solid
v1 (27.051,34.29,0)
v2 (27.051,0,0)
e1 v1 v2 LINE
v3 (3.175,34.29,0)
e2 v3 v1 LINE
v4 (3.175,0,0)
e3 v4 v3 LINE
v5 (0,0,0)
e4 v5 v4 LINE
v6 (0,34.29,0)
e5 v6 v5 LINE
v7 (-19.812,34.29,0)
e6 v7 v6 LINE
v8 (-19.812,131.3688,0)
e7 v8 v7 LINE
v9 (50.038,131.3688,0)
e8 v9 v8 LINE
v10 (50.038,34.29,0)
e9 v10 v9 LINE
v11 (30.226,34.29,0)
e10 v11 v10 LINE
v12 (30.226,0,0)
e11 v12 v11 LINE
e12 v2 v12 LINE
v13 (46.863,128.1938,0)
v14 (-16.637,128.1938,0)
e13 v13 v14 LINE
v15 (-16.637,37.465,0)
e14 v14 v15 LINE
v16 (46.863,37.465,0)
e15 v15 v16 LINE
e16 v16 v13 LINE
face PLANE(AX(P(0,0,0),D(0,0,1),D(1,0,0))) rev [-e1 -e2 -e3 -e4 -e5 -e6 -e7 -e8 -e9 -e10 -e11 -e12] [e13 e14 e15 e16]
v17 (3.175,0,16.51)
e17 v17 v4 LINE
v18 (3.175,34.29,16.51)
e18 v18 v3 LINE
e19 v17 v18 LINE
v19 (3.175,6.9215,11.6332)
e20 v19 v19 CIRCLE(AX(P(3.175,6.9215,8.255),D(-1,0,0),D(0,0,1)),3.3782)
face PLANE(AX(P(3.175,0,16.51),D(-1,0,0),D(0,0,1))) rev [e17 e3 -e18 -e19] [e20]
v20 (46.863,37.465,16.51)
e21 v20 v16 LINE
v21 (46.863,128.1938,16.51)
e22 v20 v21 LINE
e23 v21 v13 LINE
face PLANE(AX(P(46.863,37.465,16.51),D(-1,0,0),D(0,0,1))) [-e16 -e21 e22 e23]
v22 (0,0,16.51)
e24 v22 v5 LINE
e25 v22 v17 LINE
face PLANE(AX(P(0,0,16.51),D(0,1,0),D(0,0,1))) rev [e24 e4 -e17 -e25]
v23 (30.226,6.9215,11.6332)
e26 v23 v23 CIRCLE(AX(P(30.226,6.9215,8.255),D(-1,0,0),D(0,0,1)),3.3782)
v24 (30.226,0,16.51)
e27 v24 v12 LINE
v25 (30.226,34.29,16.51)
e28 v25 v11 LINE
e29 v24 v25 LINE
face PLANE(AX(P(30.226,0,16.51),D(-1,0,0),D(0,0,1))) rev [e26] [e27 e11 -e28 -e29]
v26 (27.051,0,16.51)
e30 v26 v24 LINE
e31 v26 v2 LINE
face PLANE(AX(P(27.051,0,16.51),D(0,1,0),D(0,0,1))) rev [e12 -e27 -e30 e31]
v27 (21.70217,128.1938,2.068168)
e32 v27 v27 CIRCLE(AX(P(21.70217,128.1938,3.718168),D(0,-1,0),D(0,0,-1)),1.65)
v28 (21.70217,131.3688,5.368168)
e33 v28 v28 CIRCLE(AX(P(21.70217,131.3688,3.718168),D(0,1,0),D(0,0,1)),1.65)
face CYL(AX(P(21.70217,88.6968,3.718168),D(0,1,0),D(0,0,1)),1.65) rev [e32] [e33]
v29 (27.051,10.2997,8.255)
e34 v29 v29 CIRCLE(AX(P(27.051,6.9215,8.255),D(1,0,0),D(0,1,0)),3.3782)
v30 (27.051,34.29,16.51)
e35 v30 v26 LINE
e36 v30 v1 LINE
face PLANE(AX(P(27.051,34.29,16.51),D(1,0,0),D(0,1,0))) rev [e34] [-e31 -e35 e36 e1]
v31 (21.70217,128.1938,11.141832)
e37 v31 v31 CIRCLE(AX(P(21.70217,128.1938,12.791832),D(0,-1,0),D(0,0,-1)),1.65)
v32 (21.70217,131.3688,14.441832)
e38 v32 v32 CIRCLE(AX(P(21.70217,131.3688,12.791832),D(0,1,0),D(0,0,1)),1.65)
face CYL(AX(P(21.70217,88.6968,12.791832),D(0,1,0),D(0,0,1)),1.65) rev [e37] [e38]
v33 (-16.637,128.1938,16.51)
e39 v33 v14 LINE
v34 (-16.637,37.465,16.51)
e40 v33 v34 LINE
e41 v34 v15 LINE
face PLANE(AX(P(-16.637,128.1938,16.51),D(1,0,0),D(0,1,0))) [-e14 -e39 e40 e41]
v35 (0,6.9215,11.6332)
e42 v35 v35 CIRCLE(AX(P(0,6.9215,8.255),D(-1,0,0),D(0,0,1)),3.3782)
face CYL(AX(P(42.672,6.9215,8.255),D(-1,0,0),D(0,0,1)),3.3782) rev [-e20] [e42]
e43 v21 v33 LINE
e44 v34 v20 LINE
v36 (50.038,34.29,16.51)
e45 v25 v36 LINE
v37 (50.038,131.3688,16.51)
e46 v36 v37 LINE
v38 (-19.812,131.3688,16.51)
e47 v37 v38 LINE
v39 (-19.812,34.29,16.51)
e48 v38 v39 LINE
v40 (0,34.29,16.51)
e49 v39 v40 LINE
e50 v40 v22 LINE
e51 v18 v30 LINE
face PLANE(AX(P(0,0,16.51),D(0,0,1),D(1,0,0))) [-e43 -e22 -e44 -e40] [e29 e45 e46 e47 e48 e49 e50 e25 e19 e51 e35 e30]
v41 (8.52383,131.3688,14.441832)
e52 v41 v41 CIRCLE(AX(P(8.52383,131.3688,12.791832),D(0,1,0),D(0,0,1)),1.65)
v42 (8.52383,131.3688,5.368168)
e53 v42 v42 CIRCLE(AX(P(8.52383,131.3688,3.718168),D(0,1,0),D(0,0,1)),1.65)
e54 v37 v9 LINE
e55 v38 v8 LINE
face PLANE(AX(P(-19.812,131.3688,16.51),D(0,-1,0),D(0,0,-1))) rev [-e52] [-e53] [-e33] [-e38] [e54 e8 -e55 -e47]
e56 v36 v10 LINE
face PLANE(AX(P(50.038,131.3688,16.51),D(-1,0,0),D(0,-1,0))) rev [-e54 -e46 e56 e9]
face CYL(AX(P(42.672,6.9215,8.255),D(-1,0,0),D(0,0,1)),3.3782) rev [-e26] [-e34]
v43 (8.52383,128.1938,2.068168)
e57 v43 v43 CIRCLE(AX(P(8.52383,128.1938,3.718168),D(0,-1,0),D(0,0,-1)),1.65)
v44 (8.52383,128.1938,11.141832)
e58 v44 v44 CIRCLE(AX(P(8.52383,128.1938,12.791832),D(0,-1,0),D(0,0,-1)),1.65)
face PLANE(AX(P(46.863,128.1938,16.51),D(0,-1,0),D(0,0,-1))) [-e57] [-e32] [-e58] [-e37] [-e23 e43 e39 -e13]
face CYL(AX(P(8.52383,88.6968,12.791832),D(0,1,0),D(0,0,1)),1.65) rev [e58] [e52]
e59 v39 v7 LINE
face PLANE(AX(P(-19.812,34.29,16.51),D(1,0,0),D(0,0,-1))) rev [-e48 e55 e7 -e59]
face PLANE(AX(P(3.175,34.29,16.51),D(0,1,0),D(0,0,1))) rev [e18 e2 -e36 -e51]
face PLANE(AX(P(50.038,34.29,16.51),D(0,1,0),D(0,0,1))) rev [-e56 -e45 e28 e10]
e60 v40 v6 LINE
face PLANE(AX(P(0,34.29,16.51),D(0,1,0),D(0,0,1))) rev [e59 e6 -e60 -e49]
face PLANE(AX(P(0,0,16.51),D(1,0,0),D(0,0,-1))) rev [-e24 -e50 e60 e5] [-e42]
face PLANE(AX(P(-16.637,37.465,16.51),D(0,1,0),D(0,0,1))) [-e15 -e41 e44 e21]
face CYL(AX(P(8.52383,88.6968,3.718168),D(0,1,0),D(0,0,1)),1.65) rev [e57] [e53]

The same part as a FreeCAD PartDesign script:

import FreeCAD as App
import Part
import Sketcher
from FreeCAD import Vector
Q = App.Units.Quantity


def add_polygon(sketch, points):
    """Adds a closed chain of lines whose ends are joined by coincident constraints."""
    first, n = sketch.GeometryCount, len(points)
    for a, b in zip(points, points[1:] + points[:1]):
        sketch.addGeometry(Part.LineSegment(App.Vector(*a, 0), App.Vector(*b, 0)), False)
    for i in range(n):
        sketch.addConstraint(Sketcher.Constraint("Coincident", first + i, 2, first + (i + 1) % n, 1))

doc = App.newDocument("Part")
body = doc.addObject("PartDesign::Body", "Body")

sketch1 = body.newObject("Sketcher::SketchObject", "Sketch")
sketch1.AttachmentSupport = (doc.getObject("XY_Plane"), [""])
sketch1.MapMode = "FlatFace"
add_polygon(sketch1, [(3.2, 34.3), (27.1, 34.3), (27.1, 0), (30.2, 0), (30.2, 34.3), (50, 34.3), (50, 131.4), (-19.8, 131.4), (-19.8, 34.3), (0, 34.3), (0, 0), (3.2, 0)])
add_polygon(sketch1, [(46.9, 37.5), (-16.6, 37.5), (-16.6, 128.2), (46.9, 128.2)])
sketch1.addConstraint(Sketcher.Constraint("Horizontal", 0))
sketch1.addConstraint(Sketcher.Constraint("Vertical", 1))
sketch1.addConstraint(Sketcher.Constraint("Horizontal", 2))
sketch1.addConstraint(Sketcher.Constraint("Vertical", 3))
sketch1.addConstraint(Sketcher.Constraint("Horizontal", 4))
sketch1.addConstraint(Sketcher.Constraint("Vertical", 5))
sketch1.addConstraint(Sketcher.Constraint("Horizontal", 6))
sketch1.addConstraint(Sketcher.Constraint("Vertical", 7))
sketch1.addConstraint(Sketcher.Constraint("Horizontal", 8))
sketch1.addConstraint(Sketcher.Constraint("Vertical", 9))
sketch1.addConstraint(Sketcher.Constraint("Horizontal", 10))
sketch1.addConstraint(Sketcher.Constraint("Vertical", 11))
sketch1.addConstraint(Sketcher.Constraint("Horizontal", 12))
sketch1.addConstraint(Sketcher.Constraint("Vertical", 13))
sketch1.addConstraint(Sketcher.Constraint("Horizontal", 14))
sketch1.addConstraint(Sketcher.Constraint("Vertical", 15))
sketch1.addConstraint(Sketcher.Constraint("Coincident", 9, 2, -1, 1))
sketch1.addConstraint(Sketcher.Constraint("PointOnObject", 1, 2, -1))
sketch1.addConstraint(Sketcher.Constraint("Horizontal", 0, 2, 3, 2))
sketch1.addConstraint(Sketcher.Constraint("Horizontal", 4, 2, 7, 2))
sketch1.addConstraint(Sketcher.Constraint("Equal", 4, 8))
sketch1.addConstraint(Sketcher.Constraint("Equal", 2, 10))
sketch1.addConstraint(Sketcher.Constraint("DistanceX", 12, 2, 12, 1, Q("2.5 in")))
sketch1.addConstraint(Sketcher.Constraint("DistanceX", 0, 1, 0, 2, Q("0.94 in")))
sketch1.addConstraint(Sketcher.Constraint("DistanceX", 4, 1, 4, 2, Q("0.78 in")))
sketch1.addConstraint(Sketcher.Constraint("DistanceX", 6, 2, 6, 1, Q("2.75 in")))
sketch1.addConstraint(Sketcher.Constraint("DistanceY", 1, 2, 1, 1, Q("1.35 in")))
sketch1.addConstraint(Sketcher.Constraint("DistanceY", 5, 1, 5, 2, Q("3.822 in")))
sketch1.addConstraint(Sketcher.Constraint("DistanceY", 13, 1, 13, 2, Q("3.572 in")))
sketch1.addConstraint(Sketcher.Constraint("DistanceX", 12, 2, 11, 2, Q("0.78 in")))
sketch1.addConstraint(Sketcher.Constraint("DistanceY", -1, 1, 12, 2, Q("1.475 in")))
pad1 = body.newObject("PartDesign::Pad", "Pad")
pad1.Profile = sketch1
pad1.Length = Q("0.65 in")

sketch2 = body.newObject("Sketcher::SketchObject", "Sketch001")
sketch2.AttachmentSupport = (doc.getObject("YZ_Plane"), [""])
sketch2.MapMode = "FlatFace"
sketch2.addGeometry(Part.Circle(Vector(6.9, 8.3, 0), Vector(0, 0, 1), 3.4), False)
sketch2.addConstraint(Sketcher.Constraint("Diameter", 0, Q("0.266 in")))
sketch2.addConstraint(Sketcher.Constraint("DistanceY", -1, 1, 0, 3, Q("0.325 in")))
sketch2.addConstraint(Sketcher.Constraint("DistanceX", -1, 1, 0, 3, Q("0.2725 in")))
pocket1 = body.newObject("PartDesign::Pocket", "Pocket")
pocket1.Profile = sketch2
pocket1.Length = Q("1.68 in")
pocket1.Reversed = True

sketch3 = body.newObject("Sketcher::SketchObject", "Sketch002")
sketch3.AttachmentSupport = (doc.getObject("XZ_Plane"), [""])
sketch3.MapMode = "FlatFace"
sketch3.AttachmentOffset = App.Placement(Vector(0, 0, -5.172 * 25.4), App.Rotation())
sketch3.addGeometry(Part.Circle(Vector(8.5, 3.7, 0), Vector(0, 0, 1), 1.6), False)
sketch3.addGeometry(Part.Circle(Vector(8.5, 12.8, 0), Vector(0, 0, 1), 1.6), False)
sketch3.addGeometry(Part.Circle(Vector(21.7, 12.8, 0), Vector(0, 0, 1), 1.6), False)
sketch3.addGeometry(Part.Circle(Vector(21.7, 3.7, 0), Vector(0, 0, 1), 1.6), False)
sketch3.addConstraint(Sketcher.Constraint("Equal", 0, 1))
sketch3.addConstraint(Sketcher.Constraint("Equal", 1, 2))
sketch3.addConstraint(Sketcher.Constraint("Equal", 2, 3))
sketch3.addConstraint(Sketcher.Constraint("Horizontal", 1, 3, 2, 3))
sketch3.addConstraint(Sketcher.Constraint("Horizontal", 0, 3, 3, 3))
sketch3.addConstraint(Sketcher.Constraint("Vertical", 0, 3, 1, 3))
sketch3.addConstraint(Sketcher.Constraint("Vertical", 2, 3, 3, 3))
sketch3.addConstraint(Sketcher.Constraint("Diameter", 0, Q("3.3 mm")))
sketch3.addConstraint(Sketcher.Constraint("DistanceX", -1, 1, 0, 3, Q("8.52383 mm")))
sketch3.addConstraint(Sketcher.Constraint("DistanceY", -1, 1, 0, 3, Q("3.718168 mm")))
sketch3.addConstraint(Sketcher.Constraint("DistanceY", -1, 1, 1, 3, Q("12.791832 mm")))
sketch3.addConstraint(Sketcher.Constraint("DistanceX", -1, 1, 2, 3, Q("21.70217 mm")))
pocket2 = body.newObject("PartDesign::Pocket", "Pocket001")
pocket2.Profile = sketch3
pocket2.Length = Q("1.68 in")
pocket2.Reversed = True

doc.recompute()
